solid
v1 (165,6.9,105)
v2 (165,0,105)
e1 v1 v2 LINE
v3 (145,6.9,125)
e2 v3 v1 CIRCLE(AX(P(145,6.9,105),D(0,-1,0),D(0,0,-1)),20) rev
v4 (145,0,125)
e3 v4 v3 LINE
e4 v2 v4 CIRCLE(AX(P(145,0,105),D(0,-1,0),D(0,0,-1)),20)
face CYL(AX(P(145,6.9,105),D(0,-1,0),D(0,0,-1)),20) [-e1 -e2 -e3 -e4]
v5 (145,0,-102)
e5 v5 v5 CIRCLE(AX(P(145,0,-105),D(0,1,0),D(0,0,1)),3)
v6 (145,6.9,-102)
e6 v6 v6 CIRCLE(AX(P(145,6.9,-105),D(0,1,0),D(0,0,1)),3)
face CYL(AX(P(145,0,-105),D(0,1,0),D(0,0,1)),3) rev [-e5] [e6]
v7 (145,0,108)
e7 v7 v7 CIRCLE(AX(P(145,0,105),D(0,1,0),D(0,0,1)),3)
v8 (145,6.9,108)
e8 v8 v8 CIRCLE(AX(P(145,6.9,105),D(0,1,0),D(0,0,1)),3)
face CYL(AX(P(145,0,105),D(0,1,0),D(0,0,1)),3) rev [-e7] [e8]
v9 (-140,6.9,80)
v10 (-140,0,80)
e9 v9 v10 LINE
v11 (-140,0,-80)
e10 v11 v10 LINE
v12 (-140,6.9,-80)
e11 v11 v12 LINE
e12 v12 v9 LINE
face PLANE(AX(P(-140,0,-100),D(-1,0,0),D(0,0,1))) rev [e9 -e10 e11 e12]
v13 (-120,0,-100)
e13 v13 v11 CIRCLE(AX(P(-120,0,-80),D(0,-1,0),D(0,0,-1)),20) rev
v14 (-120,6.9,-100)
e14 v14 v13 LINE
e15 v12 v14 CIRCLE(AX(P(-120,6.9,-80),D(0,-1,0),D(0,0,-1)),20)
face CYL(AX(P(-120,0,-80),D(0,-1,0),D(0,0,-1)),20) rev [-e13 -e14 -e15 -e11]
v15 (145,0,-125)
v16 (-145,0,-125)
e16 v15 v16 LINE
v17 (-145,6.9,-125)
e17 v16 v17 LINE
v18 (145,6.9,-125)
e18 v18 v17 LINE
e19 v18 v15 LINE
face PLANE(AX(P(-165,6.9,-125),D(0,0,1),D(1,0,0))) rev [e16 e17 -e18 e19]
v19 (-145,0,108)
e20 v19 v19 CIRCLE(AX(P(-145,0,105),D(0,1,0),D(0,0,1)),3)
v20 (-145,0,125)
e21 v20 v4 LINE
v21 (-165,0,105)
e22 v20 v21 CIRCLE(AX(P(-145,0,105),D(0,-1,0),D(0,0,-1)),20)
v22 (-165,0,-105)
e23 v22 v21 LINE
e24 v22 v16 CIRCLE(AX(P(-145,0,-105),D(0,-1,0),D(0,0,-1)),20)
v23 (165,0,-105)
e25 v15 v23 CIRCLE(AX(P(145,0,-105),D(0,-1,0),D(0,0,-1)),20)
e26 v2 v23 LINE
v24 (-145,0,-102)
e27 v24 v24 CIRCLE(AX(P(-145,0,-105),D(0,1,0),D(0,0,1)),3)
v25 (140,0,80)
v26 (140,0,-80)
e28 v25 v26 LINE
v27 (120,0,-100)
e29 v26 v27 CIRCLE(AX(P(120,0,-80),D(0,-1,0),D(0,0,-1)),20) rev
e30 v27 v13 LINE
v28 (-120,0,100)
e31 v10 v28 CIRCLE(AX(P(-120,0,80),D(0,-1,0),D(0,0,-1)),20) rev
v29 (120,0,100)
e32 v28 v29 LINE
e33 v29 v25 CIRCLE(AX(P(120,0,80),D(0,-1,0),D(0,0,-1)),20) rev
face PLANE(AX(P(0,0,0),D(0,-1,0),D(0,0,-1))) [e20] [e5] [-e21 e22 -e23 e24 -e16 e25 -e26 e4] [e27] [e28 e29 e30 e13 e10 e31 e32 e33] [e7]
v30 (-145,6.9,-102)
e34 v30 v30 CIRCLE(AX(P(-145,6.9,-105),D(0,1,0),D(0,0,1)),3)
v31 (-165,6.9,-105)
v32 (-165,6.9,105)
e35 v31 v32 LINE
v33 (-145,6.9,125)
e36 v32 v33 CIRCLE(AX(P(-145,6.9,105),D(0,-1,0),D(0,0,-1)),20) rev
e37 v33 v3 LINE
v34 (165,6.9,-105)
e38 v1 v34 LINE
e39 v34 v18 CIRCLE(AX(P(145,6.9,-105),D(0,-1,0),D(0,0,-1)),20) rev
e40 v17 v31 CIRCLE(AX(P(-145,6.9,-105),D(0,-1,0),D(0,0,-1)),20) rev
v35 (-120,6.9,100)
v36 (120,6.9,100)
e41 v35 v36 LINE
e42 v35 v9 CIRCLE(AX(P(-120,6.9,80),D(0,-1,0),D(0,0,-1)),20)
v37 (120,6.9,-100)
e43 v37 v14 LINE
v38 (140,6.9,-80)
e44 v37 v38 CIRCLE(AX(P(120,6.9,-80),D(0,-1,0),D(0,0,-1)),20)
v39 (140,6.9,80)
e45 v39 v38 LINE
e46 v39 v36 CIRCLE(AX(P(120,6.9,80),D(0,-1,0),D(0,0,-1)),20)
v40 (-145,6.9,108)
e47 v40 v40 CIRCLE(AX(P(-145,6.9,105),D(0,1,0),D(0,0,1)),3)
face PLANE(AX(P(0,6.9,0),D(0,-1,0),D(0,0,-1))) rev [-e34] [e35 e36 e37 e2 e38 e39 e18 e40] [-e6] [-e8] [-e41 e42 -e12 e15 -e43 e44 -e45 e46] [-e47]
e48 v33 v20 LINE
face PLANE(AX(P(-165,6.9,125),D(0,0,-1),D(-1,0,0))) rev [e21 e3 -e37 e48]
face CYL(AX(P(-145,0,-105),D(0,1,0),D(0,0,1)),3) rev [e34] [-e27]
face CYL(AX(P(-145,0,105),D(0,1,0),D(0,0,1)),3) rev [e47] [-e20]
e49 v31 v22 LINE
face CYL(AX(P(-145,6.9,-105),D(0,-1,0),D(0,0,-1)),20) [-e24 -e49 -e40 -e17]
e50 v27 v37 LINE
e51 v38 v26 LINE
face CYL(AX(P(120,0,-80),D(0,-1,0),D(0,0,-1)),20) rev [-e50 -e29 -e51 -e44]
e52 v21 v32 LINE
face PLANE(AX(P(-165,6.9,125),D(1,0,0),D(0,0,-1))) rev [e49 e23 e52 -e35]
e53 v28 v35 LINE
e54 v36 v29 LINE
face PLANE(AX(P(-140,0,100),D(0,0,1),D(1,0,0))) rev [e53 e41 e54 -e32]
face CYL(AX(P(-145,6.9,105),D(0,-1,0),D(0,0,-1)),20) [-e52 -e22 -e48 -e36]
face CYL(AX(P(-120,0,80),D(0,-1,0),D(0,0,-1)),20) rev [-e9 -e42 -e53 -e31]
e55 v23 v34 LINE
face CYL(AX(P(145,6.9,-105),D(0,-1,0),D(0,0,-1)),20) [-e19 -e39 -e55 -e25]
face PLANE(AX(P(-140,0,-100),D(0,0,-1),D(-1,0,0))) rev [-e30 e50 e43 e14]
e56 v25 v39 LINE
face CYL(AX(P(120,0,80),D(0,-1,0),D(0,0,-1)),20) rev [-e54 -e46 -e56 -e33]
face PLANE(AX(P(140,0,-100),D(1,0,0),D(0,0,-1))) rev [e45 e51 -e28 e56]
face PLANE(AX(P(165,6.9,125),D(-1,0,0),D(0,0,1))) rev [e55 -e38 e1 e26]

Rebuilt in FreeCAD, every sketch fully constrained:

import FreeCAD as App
import Part
import Sketcher
from FreeCAD import Vector
Q = App.Units.Quantity


def edges_at(feature, points):
    """Names of the edges that pass closest to the given points."""
    edges = feature.Shape.Edges
    near = lambda p: min(range(len(edges)), key=lambda i: edges[i].distToShape(Part.Vertex(*p))[0])
    return sorted({f"Edge{near(p) + 1}" for p in points})


def add_polygon(sketch, points):
    """Adds a closed chain of lines whose ends are joined by coincident constraints."""
    first, n = sketch.GeometryCount, len(points)
    for a, b in zip(points, points[1:] + points[:1]):
        sketch.addGeometry(Part.LineSegment(App.Vector(*a, 0), App.Vector(*b, 0)), False)
    for i in range(n):
        sketch.addConstraint(Sketcher.Constraint("Coincident", first + i, 2, first + (i + 1) % n, 1))

doc = App.newDocument("Part")
body = doc.addObject("PartDesign::Body", "Body")

sketch1 = doc.addObject("Sketcher::SketchObject", "Sketch")
body.addObject(sketch1)
sketch1.AttachmentSupport = (doc.XZ_Plane, [""])
sketch1.MapMode = "FlatFace"
add_polygon(sketch1, [(-165, -125), (-165, 125), (165, 125), (165, -125)])
sketch1.addConstraint([
    Sketcher.Constraint("Vertical", 0),
    Sketcher.Constraint("Horizontal", 1),
    Sketcher.Constraint("Vertical", 2),
    Sketcher.Constraint("Horizontal", 3),
    Sketcher.Constraint("Symmetric", 0, 2, 2, 2, -1, 1),
    Sketcher.Constraint("DistanceX", 1, 1, 1, 2, Q("330 mm")),
    Sketcher.Constraint("DistanceY", 0, 1, 0, 2, Q("250 mm")),
])
pad1 = doc.addObject("PartDesign::Pad", "Pad")
body.addObject(pad1)
pad1.Profile = sketch1
pad1.Length = 6.9
pad1.Reversed = True

sketch2 = doc.addObject("Sketcher::SketchObject", "Sketch001")
body.addObject(sketch2)
sketch2.AttachmentSupport = (doc.XZ_Plane, [""])
sketch2.MapMode = "FlatFace"
sketch2.AttachmentOffset = App.Placement(Vector(0, 0, -6.9), App.Rotation())
sketch2.addGeometry([
    Part.Circle(Vector(-145, -105, 0), Vector(0, 0, 1), 3),
    Part.Circle(Vector(145, -105, 0), Vector(0, 0, 1), 3),
    Part.Circle(Vector(145, 105, 0), Vector(0, 0, 1), 3),
    Part.Circle(Vector(-145, 105, 0), Vector(0, 0, 1), 3),
], False)
sketch2.addConstraint([
    Sketcher.Constraint("Equal", 0, 1),
    Sketcher.Constraint("Equal", 1, 2),
    Sketcher.Constraint("Equal", 2, 3),
    Sketcher.Constraint("Symmetric", 0, 3, 2, 3, -1, 1),
    Sketcher.Constraint("Symmetric", 1, 3, 3, 3, -1, 1),
    Sketcher.Constraint("Symmetric", 0, 3, 1, 3, -2),
    Sketcher.Constraint("Diameter", 0, Q("6 mm")),
    Sketcher.Constraint("DistanceX", 0, 3, -1, 1, Q("145 mm")),
    Sketcher.Constraint("DistanceY", 0, 3, -1, 1, Q("105 mm")),
])
pocket1 = doc.addObject("PartDesign::Pocket", "Pocket")
body.addObject(pocket1)
pocket1.Profile = sketch2
pocket1.Type = "ThroughAll"
pocket1.Reversed = True

sketch3 = doc.addObject("Sketcher::SketchObject", "Sketch002")
body.addObject(sketch3)
sketch3.AttachmentSupport = (doc.XZ_Plane, [""])
sketch3.MapMode = "FlatFace"
sketch3.AttachmentOffset = App.Placement(Vector(0, 0, -6.9), App.Rotation())
add_polygon(sketch3, [(-140, -100), (-140, 100), (140, 100), (140, -100)])
sketch3.addConstraint([
    Sketcher.Constraint("Vertical", 0),
    Sketcher.Constraint("Horizontal", 1),
    Sketcher.Constraint("Vertical", 2),
    Sketcher.Constraint("Horizontal", 3),
    Sketcher.Constraint("Symmetric", 0, 2, 2, 2, -1, 1),
    Sketcher.Constraint("DistanceX", 1, 1, 1, 2, Q("280 mm")),
    Sketcher.Constraint("DistanceY", 0, 1, 0, 2, Q("200 mm")),
])
pocket2 = doc.addObject("PartDesign::Pocket", "Pocket001")
body.addObject(pocket2)
pocket2.Profile = sketch3
pocket2.Type = "ThroughAll"
pocket2.Reversed = True
doc.recompute()

fillet = doc.addObject("PartDesign::Fillet", "Fillet")
body.addObject(fillet)
fillet.Base = (pocket2, edges_at(pocket2, [
    (-165, 3.45, -125),
    (165, 3.45, -125),
    (165, 3.45, 125),
    (-165, 3.45, 125),
]))
fillet.Radius = 20
doc.recompute()

fillet2 = doc.addObject("PartDesign::Fillet", "Fillet001")
body.addObject(fillet2)
fillet2.Base = (fillet, edges_at(fillet, [
    (-140, 3.45, 100),
    (-140, 3.45, -100),
    (140, 3.45, -100),
    (140, 3.45, 100),
]))
fillet2.Radius = 20

doc.recompute()
